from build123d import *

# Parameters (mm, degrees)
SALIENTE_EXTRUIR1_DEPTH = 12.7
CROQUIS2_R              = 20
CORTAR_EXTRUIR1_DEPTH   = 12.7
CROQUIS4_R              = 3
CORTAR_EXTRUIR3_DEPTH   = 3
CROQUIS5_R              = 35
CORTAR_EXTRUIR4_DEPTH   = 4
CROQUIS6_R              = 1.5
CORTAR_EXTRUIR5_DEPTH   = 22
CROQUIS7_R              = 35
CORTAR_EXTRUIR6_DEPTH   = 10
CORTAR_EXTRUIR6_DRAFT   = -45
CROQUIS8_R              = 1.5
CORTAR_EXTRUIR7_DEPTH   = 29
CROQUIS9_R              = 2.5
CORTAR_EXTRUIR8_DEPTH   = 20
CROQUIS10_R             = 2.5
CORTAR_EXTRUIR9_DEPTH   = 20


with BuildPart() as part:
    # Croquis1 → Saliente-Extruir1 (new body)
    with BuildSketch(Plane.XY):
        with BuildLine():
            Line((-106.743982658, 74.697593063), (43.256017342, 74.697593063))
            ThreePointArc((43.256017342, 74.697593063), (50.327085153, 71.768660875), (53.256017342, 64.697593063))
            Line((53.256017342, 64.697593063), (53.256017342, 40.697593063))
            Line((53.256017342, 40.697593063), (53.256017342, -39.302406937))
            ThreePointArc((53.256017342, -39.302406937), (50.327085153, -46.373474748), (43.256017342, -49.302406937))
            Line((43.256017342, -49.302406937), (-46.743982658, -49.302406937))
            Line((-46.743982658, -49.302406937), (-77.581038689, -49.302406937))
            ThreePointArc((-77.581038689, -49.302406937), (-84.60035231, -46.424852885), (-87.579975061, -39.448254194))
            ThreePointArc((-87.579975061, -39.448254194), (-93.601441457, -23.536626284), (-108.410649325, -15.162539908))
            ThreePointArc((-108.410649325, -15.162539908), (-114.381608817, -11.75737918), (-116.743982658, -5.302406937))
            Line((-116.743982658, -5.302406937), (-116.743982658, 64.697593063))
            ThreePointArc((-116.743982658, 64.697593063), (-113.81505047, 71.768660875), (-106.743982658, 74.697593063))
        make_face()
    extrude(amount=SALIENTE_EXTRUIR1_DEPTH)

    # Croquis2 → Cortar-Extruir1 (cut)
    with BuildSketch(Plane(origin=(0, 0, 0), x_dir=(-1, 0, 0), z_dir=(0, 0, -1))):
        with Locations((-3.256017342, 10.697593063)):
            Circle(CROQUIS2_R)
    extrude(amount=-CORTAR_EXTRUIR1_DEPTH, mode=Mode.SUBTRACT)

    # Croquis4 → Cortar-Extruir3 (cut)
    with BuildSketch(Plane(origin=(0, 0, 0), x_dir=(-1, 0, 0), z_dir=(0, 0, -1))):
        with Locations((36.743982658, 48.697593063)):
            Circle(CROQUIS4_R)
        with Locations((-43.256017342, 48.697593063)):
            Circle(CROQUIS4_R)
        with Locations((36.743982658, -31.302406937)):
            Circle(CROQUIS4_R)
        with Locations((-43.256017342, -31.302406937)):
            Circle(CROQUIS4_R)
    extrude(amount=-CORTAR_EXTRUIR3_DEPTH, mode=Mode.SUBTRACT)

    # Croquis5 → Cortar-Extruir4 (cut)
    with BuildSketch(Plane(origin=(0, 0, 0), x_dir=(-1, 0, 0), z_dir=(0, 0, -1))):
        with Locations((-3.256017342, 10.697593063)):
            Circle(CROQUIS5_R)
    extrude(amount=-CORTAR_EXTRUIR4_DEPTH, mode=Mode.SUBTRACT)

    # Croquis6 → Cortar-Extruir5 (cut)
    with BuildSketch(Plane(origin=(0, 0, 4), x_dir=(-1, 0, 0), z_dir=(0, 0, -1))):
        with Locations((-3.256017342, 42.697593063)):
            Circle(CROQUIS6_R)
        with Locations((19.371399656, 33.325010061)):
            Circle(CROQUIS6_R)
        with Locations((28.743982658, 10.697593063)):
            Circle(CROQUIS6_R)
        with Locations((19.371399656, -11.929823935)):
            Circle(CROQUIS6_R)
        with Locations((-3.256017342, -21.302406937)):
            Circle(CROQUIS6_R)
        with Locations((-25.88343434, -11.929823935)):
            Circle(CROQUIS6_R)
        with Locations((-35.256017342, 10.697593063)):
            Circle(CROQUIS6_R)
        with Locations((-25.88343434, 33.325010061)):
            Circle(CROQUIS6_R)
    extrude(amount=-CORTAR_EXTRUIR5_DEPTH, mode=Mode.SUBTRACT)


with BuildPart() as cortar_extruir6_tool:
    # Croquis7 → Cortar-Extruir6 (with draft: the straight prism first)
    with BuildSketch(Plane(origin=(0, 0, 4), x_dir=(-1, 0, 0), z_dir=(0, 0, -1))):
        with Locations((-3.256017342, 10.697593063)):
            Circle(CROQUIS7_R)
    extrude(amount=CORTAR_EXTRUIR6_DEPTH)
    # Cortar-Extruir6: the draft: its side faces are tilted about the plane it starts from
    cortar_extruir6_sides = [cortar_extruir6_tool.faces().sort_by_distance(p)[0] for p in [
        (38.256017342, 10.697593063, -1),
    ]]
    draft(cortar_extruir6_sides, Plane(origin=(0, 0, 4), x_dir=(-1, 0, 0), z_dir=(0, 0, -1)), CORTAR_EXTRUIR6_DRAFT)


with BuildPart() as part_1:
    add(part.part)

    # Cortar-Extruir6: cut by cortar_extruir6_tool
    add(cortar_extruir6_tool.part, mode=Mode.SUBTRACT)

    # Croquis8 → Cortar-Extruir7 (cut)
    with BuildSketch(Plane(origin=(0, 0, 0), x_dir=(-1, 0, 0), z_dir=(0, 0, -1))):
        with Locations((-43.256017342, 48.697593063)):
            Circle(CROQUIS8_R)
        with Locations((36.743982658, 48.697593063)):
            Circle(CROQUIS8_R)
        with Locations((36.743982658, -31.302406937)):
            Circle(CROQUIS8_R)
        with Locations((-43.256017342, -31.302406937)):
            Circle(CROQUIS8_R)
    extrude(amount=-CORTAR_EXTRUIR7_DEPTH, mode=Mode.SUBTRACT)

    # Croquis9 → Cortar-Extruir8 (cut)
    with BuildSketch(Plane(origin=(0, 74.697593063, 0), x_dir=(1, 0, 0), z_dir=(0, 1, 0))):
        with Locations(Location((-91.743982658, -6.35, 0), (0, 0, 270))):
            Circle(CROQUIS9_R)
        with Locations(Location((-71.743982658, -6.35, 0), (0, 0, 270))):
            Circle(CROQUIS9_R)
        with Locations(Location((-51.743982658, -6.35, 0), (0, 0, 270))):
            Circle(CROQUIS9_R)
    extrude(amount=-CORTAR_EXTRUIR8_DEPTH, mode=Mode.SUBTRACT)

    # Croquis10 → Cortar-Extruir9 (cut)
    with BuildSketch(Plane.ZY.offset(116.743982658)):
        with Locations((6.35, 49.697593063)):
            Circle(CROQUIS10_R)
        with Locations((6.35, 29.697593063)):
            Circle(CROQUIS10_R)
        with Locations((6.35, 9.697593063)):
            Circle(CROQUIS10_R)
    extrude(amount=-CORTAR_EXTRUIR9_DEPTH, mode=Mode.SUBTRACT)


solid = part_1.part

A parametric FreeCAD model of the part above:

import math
import FreeCAD as App
import Part
import Sketcher

V = App.Vector


def faces_at(feature, points):
    """Names of the faces that lie closest to the given points."""
    faces = feature.Shape.Faces
    near = lambda p: min(range(len(faces)), key=lambda i: faces[i].distToShape(Part.Vertex(*p))[0])
    return sorted({f"Face{near(p) + 1}" for p in points})

doc = App.newDocument("Part")
body = doc.addObject("PartDesign::Body", "Body")

# Sketch on XY plane
sketch1 = body.newObject("Sketcher::SketchObject", "Sketch")
sketch1.AttachmentSupport = (doc.getObject("XY_Plane"), [""])
sketch1.MapMode = "FlatFace"
sketch1.addGeometry(Part.LineSegment(V(43.256017, 74.697593, 0), V(-106.743983, 74.697593, 0)), False)
sketch1.addGeometry(Part.ArcOfCircle(Part.Circle(V(-106.743983, 64.697593, 0), V(0, 0, 1), 10), math.radians(90), math.radians(180)), False)
sketch1.addGeometry(Part.LineSegment(V(-116.743983, 64.697593, 0), V(-116.743983, -5.302407, 0)), False)
sketch1.addGeometry(Part.ArcOfCircle(Part.Circle(V(-106.743983, -5.302407, 0), V(0, 0, 1), 10), math.radians(180), math.radians(260.405932)), False)
sketch1.addGeometry(Part.ArcOfCircle(Part.Circle(V(-112.577316, -39.812872, 0), V(0, 0, 1), 25), math.radians(0.835673), math.radians(80.405932)), False)
sketch1.addGeometry(Part.ArcOfCircle(Part.Circle(V(-77.581039, -39.302407, 0), V(0, 0, 1), 10), math.radians(-179.164327), math.radians(-90)), False)
sketch1.addGeometry(Part.LineSegment(V(-77.581039, -49.302407, 0), V(43.256017, -49.302407, 0)), False)
sketch1.addGeometry(Part.ArcOfCircle(Part.Circle(V(43.256017, -39.302407, 0), V(0, 0, 1), 10), math.radians(-90), math.radians(0)), False)
sketch1.addGeometry(Part.LineSegment(V(53.256017, -39.302407, 0), V(53.256017, 64.697593, 0)), False)
sketch1.addGeometry(Part.ArcOfCircle(Part.Circle(V(43.256017, 64.697593, 0), V(0, 0, 1), 10), math.radians(0), math.radians(90)), False)
sketch1.addConstraint(Sketcher.Constraint("Tangent", 0, 2, 1, 1))
sketch1.addConstraint(Sketcher.Constraint("Tangent", 1, 2, 2, 1))
sketch1.addConstraint(Sketcher.Constraint("Tangent", 2, 2, 3, 1))
sketch1.addConstraint(Sketcher.Constraint("Tangent", 3, 2, 4, 2))
sketch1.addConstraint(Sketcher.Constraint("Tangent", 4, 1, 5, 1))
sketch1.addConstraint(Sketcher.Constraint("Tangent", 5, 2, 6, 1))
sketch1.addConstraint(Sketcher.Constraint("Tangent", 6, 2, 7, 1))
sketch1.addConstraint(Sketcher.Constraint("Tangent", 7, 2, 8, 1))
sketch1.addConstraint(Sketcher.Constraint("Tangent", 8, 2, 9, 1))
sketch1.addConstraint(Sketcher.Constraint("Tangent", 9, 2, 0, 1))
sketch1.addConstraint(Sketcher.Constraint("Horizontal", 0))
sketch1.addConstraint(Sketcher.Constraint("Vertical", 2))
sketch1.addConstraint(Sketcher.Constraint("Horizontal", 6))
sketch1.addConstraint(Sketcher.Constraint("Vertical", 8))
sketch1.addConstraint(Sketcher.Constraint("Equal", 1, 3))
sketch1.addConstraint(Sketcher.Constraint("Equal", 3, 5))
sketch1.addConstraint(Sketcher.Constraint("Equal", 5, 7))
sketch1.addConstraint(Sketcher.Constraint("Equal", 7, 9))
sketch1.addConstraint(Sketcher.Constraint("Radius", 1, 10.0))
sketch1.addConstraint(Sketcher.Constraint("Radius", 4, 25.0))
sketch1.addConstraint(Sketcher.Constraint("DistanceX", 0, 2, 0, 1, 150.0))
sketch1.addConstraint(Sketcher.Constraint("DistanceY", 2, 2, 2, 1, 70.0))
sketch1.addConstraint(Sketcher.Constraint("DistanceY", 8, 1, 8, 2, 104.0))
sketch1.addConstraint(Sketcher.Constraint("DistanceX", 6, 1, 6, 2, 120.837056))
sketch1.addConstraint(Sketcher.Constraint("DistanceX", 5, 3, -1, 1, 77.581039))
sketch1.addConstraint(Sketcher.Constraint("DistanceY", 3, 2, -1, 1, 15.16254))
pad1 = body.newObject("PartDesign::Pad", "Pad")
pad1.Profile = sketch1
pad1.Length = 12.7

# Sketch on XY plane
sketch2 = body.newObject("Sketcher::SketchObject", "Sketch001")
sketch2.AttachmentSupport = (doc.getObject("XY_Plane"), [""])
sketch2.MapMode = "FlatFace"
sketch2.addGeometry(Part.Circle(V(3.256017, 10.697593, 0), V(0, 0, 1), 20), False)
sketch2.addConstraint(Sketcher.Constraint("Diameter", 0, 40.0))
sketch2.addConstraint(Sketcher.Constraint("DistanceX", -1, 1, 0, 3, 3.256017))
sketch2.addConstraint(Sketcher.Constraint("DistanceY", -1, 1, 0, 3, 10.697593))
pocket1 = body.newObject("PartDesign::Pocket", "Pocket")
pocket1.Profile = sketch2
pocket1.Length = 12.7
pocket1.Reversed = True

# Sketch on XY plane
sketch3 = body.newObject("Sketcher::SketchObject", "Sketch002")
sketch3.AttachmentSupport = (doc.getObject("XY_Plane"), [""])
sketch3.MapMode = "FlatFace"
sketch3.addGeometry(Part.Circle(V(-36.743983, 48.697593, 0), V(0, 0, 1), 3), False)
sketch3.addGeometry(Part.Circle(V(43.256017, 48.697593, 0), V(0, 0, 1), 3), False)
sketch3.addGeometry(Part.Circle(V(-36.743983, -31.302407, 0), V(0, 0, 1), 3), False)
sketch3.addGeometry(Part.Circle(V(43.256017, -31.302407, 0), V(0, 0, 1), 3), False)
sketch3.addConstraint(Sketcher.Constraint("Equal", 0, 1))
sketch3.addConstraint(Sketcher.Constraint("Equal", 1, 2))
sketch3.addConstraint(Sketcher.Constraint("Equal", 2, 3))
sketch3.addConstraint(Sketcher.Constraint("Horizontal", 0, 3, 1, 3))
sketch3.addConstraint(Sketcher.Constraint("Horizontal", 2, 3, 3, 3))
sketch3.addConstraint(Sketcher.Constraint("Vertical", 0, 3, 2, 3))
sketch3.addConstraint(Sketcher.Constraint("Vertical", 1, 3, 3, 3))
sketch3.addConstraint(Sketcher.Constraint("Diameter", 0, 6.0))
sketch3.addConstraint(Sketcher.Constraint("DistanceX", 0, 3, 1, 3, 80.0))
sketch3.addConstraint(Sketcher.Constraint("DistanceY", 2, 3, 0, 3, 80.0))
sketch3.addConstraint(Sketcher.Constraint("DistanceX", 0, 3, -1, 1, 36.743983))
sketch3.addConstraint(Sketcher.Constraint("DistanceY", -1, 1, 0, 3, 48.697593))
pocket2 = body.newObject("PartDesign::Pocket", "Pocket001")
pocket2.Profile = sketch3
pocket2.Length = 3
pocket2.Reversed = True

# Sketch on XY plane
sketch4 = body.newObject("Sketcher::SketchObject", "Sketch003")
sketch4.AttachmentSupport = (doc.getObject("XY_Plane"), [""])
sketch4.MapMode = "FlatFace"
sketch4.addGeometry(Part.Circle(V(3.256017, 10.697593, 0), V(0, 0, 1), 35), False)
sketch4.addConstraint(Sketcher.Constraint("Diameter", 0, 70.0))
sketch4.addConstraint(Sketcher.Constraint("DistanceX", -1, 1, 0, 3, 3.256017))
sketch4.addConstraint(Sketcher.Constraint("DistanceY", -1, 1, 0, 3, 10.697593))
pocket3 = body.newObject("PartDesign::Pocket", "Pocket002")
pocket3.Profile = sketch4
pocket3.Length = 4
pocket3.Reversed = True

# Sketch on XY plane
sketch5 = body.newObject("Sketcher::SketchObject", "Sketch004")
sketch5.AttachmentSupport = (doc.getObject("XY_Plane"), [""])
sketch5.MapMode = "FlatFace"
sketch5.AttachmentOffset = App.Placement(V(0, 0, 4), App.Rotation())
sketch5.addGeometry(Part.Circle(V(3.256017, 42.697593, 0), V(0, 0, 1), 1.5), False)
sketch5.addGeometry(Part.Circle(V(-19.3714, 33.32501, 0), V(0, 0, 1), 1.5), False)
sketch5.addGeometry(Part.Circle(V(-28.743983, 10.697593, 0), V(0, 0, 1), 1.5), False)
sketch5.addGeometry(Part.Circle(V(-19.3714, -11.929824, 0), V(0, 0, 1), 1.5), False)
sketch5.addGeometry(Part.Circle(V(3.256017, -21.302407, 0), V(0, 0, 1), 1.5), False)
sketch5.addGeometry(Part.Circle(V(25.883434, -11.929824, 0), V(0, 0, 1), 1.5), False)
sketch5.addGeometry(Part.Circle(V(35.256017, 10.697593, 0), V(0, 0, 1), 1.5), False)
sketch5.addGeometry(Part.Circle(V(25.883434, 33.32501, 0), V(0, 0, 1), 1.5), False)
sketch5.addConstraint(Sketcher.Constraint("Equal", 0, 1))
sketch5.addConstraint(Sketcher.Constraint("Equal", 1, 2))
sketch5.addConstraint(Sketcher.Constraint("Equal", 2, 3))
sketch5.addConstraint(Sketcher.Constraint("Equal", 3, 4))
sketch5.addConstraint(Sketcher.Constraint("Equal", 4, 5))
sketch5.addConstraint(Sketcher.Constraint("Equal", 5, 6))
sketch5.addConstraint(Sketcher.Constraint("Equal", 6, 7))
sketch5.addConstraint(Sketcher.Constraint("Horizontal", 3, 3, 5, 3))
sketch5.addConstraint(Sketcher.Constraint("Horizontal", 2, 3, 6, 3))
sketch5.addConstraint(Sketcher.Constraint("Horizontal", 1, 3, 7, 3))
sketch5.addConstraint(Sketcher.Constraint("Vertical", 1, 3, 3, 3))
sketch5.addConstraint(Sketcher.Constraint("Vertical", 0, 3, 4, 3))
sketch5.addConstraint(Sketcher.Constraint("Vertical", 5, 3, 7, 3))
sketch5.addConstraint(Sketcher.Constraint("Diameter", 0, 3.0))
sketch5.addConstraint(Sketcher.Constraint("DistanceX", 2, 3, 0, 3, 32.0))
sketch5.addConstraint(Sketcher.Constraint("DistanceY", 2, 3, 0, 3, 32.0))
sketch5.addConstraint(Sketcher.Constraint("DistanceY", 4, 3, 2, 3, 32.0))
sketch5.addConstraint(Sketcher.Constraint("DistanceX", 0, 3, 6, 3, 32.0))
sketch5.addConstraint(Sketcher.Constraint("DistanceX", 1, 3, -1, 1, 19.3714))
sketch5.addConstraint(Sketcher.Constraint("DistanceY", -1, 1, 1, 3, 33.32501))
sketch5.addConstraint(Sketcher.Constraint("DistanceX", -1, 1, 0, 3, 3.256017))
sketch5.addConstraint(Sketcher.Constraint("DistanceY", -1, 1, 0, 3, 42.697593))
sketch5.addConstraint(Sketcher.Constraint("DistanceY", 3, 3, -1, 1, 11.929824))
sketch5.addConstraint(Sketcher.Constraint("DistanceX", -1, 1, 5, 3, 25.883434))
pocket4 = body.newObject("PartDesign::Pocket", "Pocket003")
pocket4.Profile = sketch5
pocket4.Length = 22
pocket4.Reversed = True
body2 = doc.addObject("PartDesign::Body", "Body001")

# Sketch on XY plane
sketch6 = body2.newObject("Sketcher::SketchObject", "Sketch005")
sketch6.AttachmentSupport = (doc.getObject("XY_Plane001"), [""])
sketch6.MapMode = "FlatFace"
sketch6.AttachmentOffset = App.Placement(V(0, 0, 4), App.Rotation())
sketch6.addGeometry(Part.Circle(V(3.256017, 10.697593, 0), V(0, 0, 1), 35), False)
sketch6.addConstraint(Sketcher.Constraint("Diameter", 0, 70.0))
sketch6.addConstraint(Sketcher.Constraint("DistanceX", -1, 1, 0, 3, 3.256017))
sketch6.addConstraint(Sketcher.Constraint("DistanceY", -1, 1, 0, 3, 10.697593))
pad2 = body2.newObject("PartDesign::Pad", "Pad001")
pad2.Profile = sketch6
pad2.Length = 10
pad2.Reversed = True
doc.recompute()

datumplane = body2.newObject("PartDesign::Plane", "DatumPlane")
datumplane.AttachmentSupport = (doc.getObject("XY_Plane001"), [""])
datumplane.MapMode = "FlatFace"
datumplane.AttachmentOffset = App.Placement(V(0, 0, 4), App.Rotation())
draft = body2.newObject("PartDesign::Draft", "Draft")
draft.Base = (pad2, faces_at(pad2, [(38.256, 10.698, -1)]))
draft.NeutralPlane = (datumplane, [""])
draft.Angle = 45
draft.Reversed = False
doc.recompute()

boolean = body.newObject("PartDesign::Boolean", "Boolean")
boolean.Type = "Cut"
boolean.addObjects([body2])

# Sketch on XY plane
sketch7 = body.newObject("Sketcher::SketchObject", "Sketch006")
sketch7.AttachmentSupport = (doc.getObject("XY_Plane"), [""])
sketch7.MapMode = "FlatFace"
sketch7.addGeometry(Part.Circle(V(43.256017, 48.697593, 0), V(0, 0, 1), 1.5), False)
sketch7.addGeometry(Part.Circle(V(-36.743983, 48.697593, 0), V(0, 0, 1), 1.5), False)
sketch7.addGeometry(Part.Circle(V(-36.743983, -31.302407, 0), V(0, 0, 1), 1.5), False)
sketch7.addGeometry(Part.Circle(V(43.256017, -31.302407, 0), V(0, 0, 1), 1.5), False)
sketch7.addConstraint(Sketcher.Constraint("Equal", 0, 1))
sketch7.addConstraint(Sketcher.Constraint("Equal", 1, 2))
sketch7.addConstraint(Sketcher.Constraint("Equal", 2, 3))
sketch7.addConstraint(Sketcher.Constraint("Horizontal", 0, 3, 1, 3))
sketch7.addConstraint(Sketcher.Constraint("Horizontal", 2, 3, 3, 3))
sketch7.addConstraint(Sketcher.Constraint("Vertical", 1, 3, 2, 3))
sketch7.addConstraint(Sketcher.Constraint("Vertical", 0, 3, 3, 3))
sketch7.addConstraint(Sketcher.Constraint("Diameter", 0, 3.0))
sketch7.addConstraint(Sketcher.Constraint("DistanceX", 1, 3, 0, 3, 80.0))
sketch7.addConstraint(Sketcher.Constraint("DistanceY", 2, 3, 1, 3, 80.0))
sketch7.addConstraint(Sketcher.Constraint("DistanceX", -1, 1, 0, 3, 43.256017))
sketch7.addConstraint(Sketcher.Constraint("DistanceY", -1, 1, 0, 3, 48.697593))
pocket5 = body.newObject("PartDesign::Pocket", "Pocket004")
pocket5.Profile = sketch7
pocket5.Length = 29
pocket5.Reversed = True

# Sketch on XZ plane
sketch8 = body.newObject("Sketcher::SketchObject", "Sketch007")
sketch8.AttachmentSupport = (doc.getObject("XZ_Plane"), [""])
sketch8.MapMode = "FlatFace"
sketch8.AttachmentOffset = App.Placement(V(0, 0, -74.697593), App.Rotation())
sketch8.addGeometry(Part.Circle(V(-91.743983, 6.35, 0), V(0, 0, 1), 2.5), False)
sketch8.addGeometry(Part.Circle(V(-71.743983, 6.35, 0), V(0, 0, 1), 2.5), False)
sketch8.addGeometry(Part.Circle(V(-51.743983, 6.35, 0), V(0, 0, 1), 2.5), False)
sketch8.addConstraint(Sketcher.Constraint("Equal", 0, 1))
sketch8.addConstraint(Sketcher.Constraint("Equal", 1, 2))
sketch8.addConstraint(Sketcher.Constraint("Horizontal", 0, 3, 1, 3))
sketch8.addConstraint(Sketcher.Constraint("Horizontal", 1, 3, 2, 3))
sketch8.addConstraint(Sketcher.Constraint("Diameter", 0, 5.0))
sketch8.addConstraint(Sketcher.Constraint("DistanceX", 0, 3, 1, 3, 20.0))
sketch8.addConstraint(Sketcher.Constraint("DistanceX", 1, 3, 2, 3, 20.0))
sketch8.addConstraint(Sketcher.Constraint("DistanceY", -1, 1, 0, 3, 6.35))
sketch8.addConstraint(Sketcher.Constraint("DistanceX", 0, 3, -1, 1, 91.743983))
pocket6 = body.newObject("PartDesign::Pocket", "Pocket005")
pocket6.Profile = sketch8
pocket6.Length = 20
pocket6.Reversed = True

# Sketch on YZ plane
sketch9 = body.newObject("Sketcher::SketchObject", "Sketch008")
sketch9.AttachmentSupport = (doc.getObject("YZ_Plane"), [""])
sketch9.MapMode = "FlatFace"
sketch9.AttachmentOffset = App.Placement(V(0, 0, -116.743983), App.Rotation())
sketch9.addGeometry(Part.Circle(V(49.697593, 6.35, 0), V(0, 0, 1), 2.5), False)
sketch9.addGeometry(Part.Circle(V(29.697593, 6.35, 0), V(0, 0, 1), 2.5), False)
sketch9.addGeometry(Part.Circle(V(9.697593, 6.35, 0), V(0, 0, 1), 2.5), False)
sketch9.addConstraint(Sketcher.Constraint("Equal", 0, 1))
sketch9.addConstraint(Sketcher.Constraint("Equal", 1, 2))
sketch9.addConstraint(Sketcher.Constraint("Horizontal", 0, 3, 1, 3))
sketch9.addConstraint(Sketcher.Constraint("Horizontal", 1, 3, 2, 3))
sketch9.addConstraint(Sketcher.Constraint("Diameter", 0, 5.0))
sketch9.addConstraint(Sketcher.Constraint("DistanceX", 1, 3, 0, 3, 20.0))
sketch9.addConstraint(Sketcher.Constraint("DistanceX", 2, 3, 1, 3, 20.0))
sketch9.addConstraint(Sketcher.Constraint("DistanceY", -1, 1, 0, 3, 6.35))
sketch9.addConstraint(Sketcher.Constraint("DistanceX", -1, 1, 0, 3, 49.697593))
pocket7 = body.newObject("PartDesign::Pocket", "Pocket006")
pocket7.Profile = sketch9
pocket7.Length = 20
pocket7.Reversed = True

doc.recompute()
